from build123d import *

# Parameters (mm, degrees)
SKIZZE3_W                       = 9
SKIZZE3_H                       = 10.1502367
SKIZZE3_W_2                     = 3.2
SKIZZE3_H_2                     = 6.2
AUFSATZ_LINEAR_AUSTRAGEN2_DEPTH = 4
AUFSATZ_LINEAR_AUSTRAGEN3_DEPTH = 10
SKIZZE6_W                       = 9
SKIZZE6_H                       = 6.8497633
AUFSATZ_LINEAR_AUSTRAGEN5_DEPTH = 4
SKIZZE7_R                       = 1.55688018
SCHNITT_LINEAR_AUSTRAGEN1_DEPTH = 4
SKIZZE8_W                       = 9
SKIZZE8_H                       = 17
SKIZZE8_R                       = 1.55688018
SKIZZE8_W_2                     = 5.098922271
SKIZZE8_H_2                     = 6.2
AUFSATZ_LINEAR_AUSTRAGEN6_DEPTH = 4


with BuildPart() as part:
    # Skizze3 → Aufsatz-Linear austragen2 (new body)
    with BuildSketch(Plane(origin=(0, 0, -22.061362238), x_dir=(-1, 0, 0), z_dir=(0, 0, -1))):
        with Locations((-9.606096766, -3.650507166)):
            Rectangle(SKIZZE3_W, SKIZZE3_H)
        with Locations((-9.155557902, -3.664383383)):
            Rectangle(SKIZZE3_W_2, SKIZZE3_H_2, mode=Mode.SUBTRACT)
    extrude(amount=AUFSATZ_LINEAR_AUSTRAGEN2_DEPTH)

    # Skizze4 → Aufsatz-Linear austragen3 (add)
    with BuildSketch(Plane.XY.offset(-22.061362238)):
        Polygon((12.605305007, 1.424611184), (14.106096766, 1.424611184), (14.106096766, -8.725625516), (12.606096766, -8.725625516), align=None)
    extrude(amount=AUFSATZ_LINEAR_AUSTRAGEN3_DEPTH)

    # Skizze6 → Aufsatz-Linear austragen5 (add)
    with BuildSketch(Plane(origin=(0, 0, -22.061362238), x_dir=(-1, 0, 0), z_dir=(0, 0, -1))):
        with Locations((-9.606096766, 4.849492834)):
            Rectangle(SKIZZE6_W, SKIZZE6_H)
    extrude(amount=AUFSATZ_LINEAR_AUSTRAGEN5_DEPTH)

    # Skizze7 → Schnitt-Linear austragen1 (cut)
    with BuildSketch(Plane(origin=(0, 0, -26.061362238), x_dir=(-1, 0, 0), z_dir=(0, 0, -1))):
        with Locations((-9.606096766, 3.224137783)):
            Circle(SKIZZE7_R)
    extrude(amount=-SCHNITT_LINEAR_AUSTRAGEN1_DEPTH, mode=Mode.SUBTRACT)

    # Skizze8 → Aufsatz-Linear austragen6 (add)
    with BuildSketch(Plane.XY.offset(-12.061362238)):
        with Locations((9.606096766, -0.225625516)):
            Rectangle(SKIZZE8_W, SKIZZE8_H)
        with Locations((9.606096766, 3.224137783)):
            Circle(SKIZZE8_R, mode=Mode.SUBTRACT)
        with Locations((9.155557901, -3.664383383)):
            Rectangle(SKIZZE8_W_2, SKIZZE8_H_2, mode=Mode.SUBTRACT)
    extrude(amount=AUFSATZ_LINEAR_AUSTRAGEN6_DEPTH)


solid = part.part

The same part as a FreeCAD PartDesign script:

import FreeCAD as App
import Part
import Sketcher
from FreeCAD import Vector
Q = App.Units.Quantity


def add_polygon(sketch, points):
    """Adds a closed chain of lines whose ends are joined by coincident constraints."""
    first, n = sketch.GeometryCount, len(points)
    for a, b in zip(points, points[1:] + points[:1]):
        sketch.addGeometry(Part.LineSegment(App.Vector(*a, 0), App.Vector(*b, 0)), False)
    for i in range(n):
        sketch.addConstraint(Sketcher.Constraint("Coincident", first + i, 2, first + (i + 1) % n, 1))

doc = App.newDocument("Part")
params = doc.addObject("Spreadsheet::Sheet", "Params")
for row, (alias, value) in enumerate([
    ("sketch1_width", "9 mm"),
    ("sketch1_width2", "3.2 mm"),
    ("sketch1_height", "6.2 mm"),
    ("pad1_length", "4 mm"),
    ("sketch2_width", "1.5 mm"),
    ("pad2_length", "10 mm"),
    ("sketch3_width", "9 mm"),
    ("pad3_length", "4 mm"),
    ("pocket1_length", "4 mm"),
    ("sketch5_width", "9 mm"),
    ("sketch5_height", "17 mm"),
    ("sketch5_height2", "6.2 mm"),
    ("pad4_length", "4 mm"),
], start=1):
    params.set(f"A{row}", alias)
    params.set(f"B{row}", "=" + value)
    params.setAlias(f"B{row}", alias)

body = doc.addObject("PartDesign::Body", "Body")

sketch1 = body.newObject("Sketcher::SketchObject", "Sketch")
sketch1.AttachmentSupport = (doc.getObject("XY_Plane"), [""])
sketch1.MapMode = "FlatFace"
sketch1.AttachmentOffset = App.Placement(Vector(0, 0, -22.061362), App.Rotation())
add_polygon(sketch1, [(14.1, 1.4), (14.1, -8.7), (5.1, -8.7), (5.1, 1.4)])
add_polygon(sketch1, [(7.6, -6.8), (10.8, -6.8), (10.8, -0.6), (7.6, -0.6)])
sketch1.addConstraint(Sketcher.Constraint("Vertical", 0))
sketch1.addConstraint(Sketcher.Constraint("Horizontal", 1))
sketch1.addConstraint(Sketcher.Constraint("Vertical", 2))
sketch1.addConstraint(Sketcher.Constraint("Horizontal", 3))
sketch1.addConstraint(Sketcher.Constraint("Horizontal", 4))
sketch1.addConstraint(Sketcher.Constraint("Vertical", 5))
sketch1.addConstraint(Sketcher.Constraint("Horizontal", 6))
sketch1.addConstraint(Sketcher.Constraint("Vertical", 7))
sketch1.addConstraint(Sketcher.Constraint("DistanceX", 1, 2, 1, 1, Q("9 mm")))
sketch1.addConstraint(Sketcher.Constraint("DistanceX", 4, 1, 4, 2, Q("3.2 mm")))
sketch1.addConstraint(Sketcher.Constraint("DistanceY", 5, 1, 5, 2, Q("6.2 mm")))
sketch1.addConstraint(Sketcher.Constraint("DistanceY", 0, 2, 0, 1, Q("10.150237 mm")))
sketch1.addConstraint(Sketcher.Constraint("DistanceY", -1, 1, 2, 2, Q("1.424611 mm")))
sketch1.addConstraint(Sketcher.Constraint("DistanceX", 4, 2, 0, 2, Q("3.350539 mm")))
sketch1.addConstraint(Sketcher.Constraint("DistanceX", -1, 1, 0, 2, Q("14.106097 mm")))
sketch1.addConstraint(Sketcher.Constraint("DistanceY", 4, 2, -1, 1, Q("6.764383 mm")))
sketch1.setExpression("Constraints[16]", "Params.sketch1_width")
sketch1.setExpression("Constraints[17]", "Params.sketch1_width2")
sketch1.setExpression("Constraints[18]", "Params.sketch1_height")
pad1 = body.newObject("PartDesign::Pad", "Pad")
pad1.Profile = sketch1
pad1.setExpression("Length", "Params.pad1_length")
pad1.Reversed = True

sketch2 = body.newObject("Sketcher::SketchObject", "Sketch001")
sketch2.AttachmentSupport = (doc.getObject("XY_Plane"), [""])
sketch2.MapMode = "FlatFace"
sketch2.AttachmentOffset = App.Placement(Vector(0, 0, -22.061362), App.Rotation())
add_polygon(sketch2, [(14.1, 1.4), (12.6, 1.4), (12.6, -8.7), (14.1, -8.7)])
sketch2.addConstraint(Sketcher.Constraint("Horizontal", 0))
sketch2.addConstraint(Sketcher.Constraint("Horizontal", 2))
sketch2.addConstraint(Sketcher.Constraint("Vertical", 3))
sketch2.addConstraint(Sketcher.Constraint("DistanceX", 2, 1, 2, 2, Q("1.5 mm")))
sketch2.addConstraint(Sketcher.Constraint("DistanceX", 0, 2, 0, 1, Q("1.500792 mm")))
sketch2.addConstraint(Sketcher.Constraint("DistanceY", 3, 1, 3, 2, Q("10.150237 mm")))
sketch2.addConstraint(Sketcher.Constraint("DistanceY", -1, 1, 0, 2, Q("1.424611 mm")))
sketch2.addConstraint(Sketcher.Constraint("DistanceX", -1, 1, 0, 2, Q("12.605305 mm")))
sketch2.setExpression("Constraints[7]", "Params.sketch2_width")
pad2 = body.newObject("PartDesign::Pad", "Pad001")
pad2.Profile = sketch2
pad2.setExpression("Length", "Params.pad2_length")

sketch3 = body.newObject("Sketcher::SketchObject", "Sketch002")
sketch3.AttachmentSupport = (doc.getObject("XY_Plane"), [""])
sketch3.MapMode = "FlatFace"
sketch3.AttachmentOffset = App.Placement(Vector(0, 0, -22.061362), App.Rotation())
add_polygon(sketch3, [(14, 8), (14, 1), (5, 1), (5, 8)])
sketch3.addConstraint(Sketcher.Constraint("Vertical", 0))
sketch3.addConstraint(Sketcher.Constraint("Horizontal", 1))
sketch3.addConstraint(Sketcher.Constraint("Vertical", 2))
sketch3.addConstraint(Sketcher.Constraint("Horizontal", 3))
sketch3.addConstraint(Sketcher.Constraint("DistanceX", 1, 2, 1, 1, Q("9 mm")))
sketch3.addConstraint(Sketcher.Constraint("DistanceY", 0, 2, 0, 1, Q("6.849763 mm")))
sketch3.addConstraint(Sketcher.Constraint("DistanceY", -1, 1, 0, 2, Q("1.424611 mm")))
sketch3.addConstraint(Sketcher.Constraint("DistanceX", -1, 1, 0, 2, Q("14.106097 mm")))
sketch3.setExpression("Constraints[8]", "Params.sketch3_width")
pad3 = body.newObject("PartDesign::Pad", "Pad002")
pad3.Profile = sketch3
pad3.setExpression("Length", "Params.pad3_length")
pad3.Reversed = True

sketch4 = body.newObject("Sketcher::SketchObject", "Sketch003")
sketch4.AttachmentSupport = (doc.getObject("XY_Plane"), [""])
sketch4.MapMode = "FlatFace"
sketch4.AttachmentOffset = App.Placement(Vector(0, 0, -26.061362), App.Rotation())
sketch4.addGeometry(Part.Circle(Vector(9.6, 3.2, 0), Vector(0, 0, 1), 1.6), False)
sketch4.addConstraint(Sketcher.Constraint("Diameter", 0, Q("3.11376 mm")))
sketch4.addConstraint(Sketcher.Constraint("DistanceX", -1, 1, 0, 3, Q("9.606097 mm")))
sketch4.addConstraint(Sketcher.Constraint("DistanceY", -1, 1, 0, 3, Q("3.224138 mm")))
pocket1 = body.newObject("PartDesign::Pocket", "Pocket")
pocket1.Profile = sketch4
pocket1.setExpression("Length", "Params.pocket1_length")
pocket1.Reversed = True

sketch5 = body.newObject("Sketcher::SketchObject", "Sketch004")
sketch5.AttachmentSupport = (doc.getObject("XY_Plane"), [""])
sketch5.MapMode = "FlatFace"
sketch5.AttachmentOffset = App.Placement(Vector(0, 0, -12.061362), App.Rotation())
add_polygon(sketch5, [(5.1, 8.3), (5.1, -8.7), (14.1, -8.7), (14.1, 8.3)])
add_polygon(sketch5, [(11.7, -6.8), (6.6, -6.8), (6.6, -0.6), (11.7, -0.6)])
sketch5.addGeometry(Part.Circle(Vector(9.6, 3.2, 0), Vector(0, 0, 1), 1.6), False)
sketch5.addConstraint(Sketcher.Constraint("Vertical", 0))
sketch5.addConstraint(Sketcher.Constraint("Horizontal", 1))
sketch5.addConstraint(Sketcher.Constraint("Vertical", 2))
sketch5.addConstraint(Sketcher.Constraint("Horizontal", 3))
sketch5.addConstraint(Sketcher.Constraint("Horizontal", 4))
sketch5.addConstraint(Sketcher.Constraint("Vertical", 5))
sketch5.addConstraint(Sketcher.Constraint("Horizontal", 6))
sketch5.addConstraint(Sketcher.Constraint("Vertical", 7))
sketch5.addConstraint(Sketcher.Constraint("DistanceX", 1, 1, 1, 2, Q("9 mm")))
sketch5.addConstraint(Sketcher.Constraint("DistanceY", 0, 2, 0, 1, Q("17 mm")))
sketch5.addConstraint(Sketcher.Constraint("DistanceY", 5, 1, 5, 2, Q("6.2 mm")))
sketch5.addConstraint(Sketcher.Constraint("DistanceX", 4, 2, 8, 3, Q("3 mm")))
sketch5.addConstraint(Sketcher.Constraint("DistanceX", 0, 2, 8, 3, Q("4.5 mm")))
sketch5.addConstraint(Sketcher.Constraint("Diameter", 8, Q("3.11376 mm")))
sketch5.addConstraint(Sketcher.Constraint("DistanceX", 4, 2, 4, 1, Q("5.098922 mm")))
sketch5.addConstraint(Sketcher.Constraint("DistanceX", -1, 1, 6, 2, Q("11.705019 mm")))
sketch5.addConstraint(Sketcher.Constraint("DistanceY", 4, 2, 8, 3, Q("9.988521 mm")))
sketch5.addConstraint(Sketcher.Constraint("DistanceY", -1, 1, 8, 3, Q("3.224138 mm")))
sketch5.addConstraint(Sketcher.Constraint("DistanceY", 0, 2, -1, 1, Q("8.725626 mm")))
sketch5.setExpression("Constraints[16]", "Params.sketch5_width")
sketch5.setExpression("Constraints[17]", "Params.sketch5_height")
sketch5.setExpression("Constraints[18]", "Params.sketch5_height2")
pad4 = body.newObject("PartDesign::Pad", "Pad003")
pad4.Profile = sketch5
pad4.setExpression("Length", "Params.pad4_length")

doc.recompute()
